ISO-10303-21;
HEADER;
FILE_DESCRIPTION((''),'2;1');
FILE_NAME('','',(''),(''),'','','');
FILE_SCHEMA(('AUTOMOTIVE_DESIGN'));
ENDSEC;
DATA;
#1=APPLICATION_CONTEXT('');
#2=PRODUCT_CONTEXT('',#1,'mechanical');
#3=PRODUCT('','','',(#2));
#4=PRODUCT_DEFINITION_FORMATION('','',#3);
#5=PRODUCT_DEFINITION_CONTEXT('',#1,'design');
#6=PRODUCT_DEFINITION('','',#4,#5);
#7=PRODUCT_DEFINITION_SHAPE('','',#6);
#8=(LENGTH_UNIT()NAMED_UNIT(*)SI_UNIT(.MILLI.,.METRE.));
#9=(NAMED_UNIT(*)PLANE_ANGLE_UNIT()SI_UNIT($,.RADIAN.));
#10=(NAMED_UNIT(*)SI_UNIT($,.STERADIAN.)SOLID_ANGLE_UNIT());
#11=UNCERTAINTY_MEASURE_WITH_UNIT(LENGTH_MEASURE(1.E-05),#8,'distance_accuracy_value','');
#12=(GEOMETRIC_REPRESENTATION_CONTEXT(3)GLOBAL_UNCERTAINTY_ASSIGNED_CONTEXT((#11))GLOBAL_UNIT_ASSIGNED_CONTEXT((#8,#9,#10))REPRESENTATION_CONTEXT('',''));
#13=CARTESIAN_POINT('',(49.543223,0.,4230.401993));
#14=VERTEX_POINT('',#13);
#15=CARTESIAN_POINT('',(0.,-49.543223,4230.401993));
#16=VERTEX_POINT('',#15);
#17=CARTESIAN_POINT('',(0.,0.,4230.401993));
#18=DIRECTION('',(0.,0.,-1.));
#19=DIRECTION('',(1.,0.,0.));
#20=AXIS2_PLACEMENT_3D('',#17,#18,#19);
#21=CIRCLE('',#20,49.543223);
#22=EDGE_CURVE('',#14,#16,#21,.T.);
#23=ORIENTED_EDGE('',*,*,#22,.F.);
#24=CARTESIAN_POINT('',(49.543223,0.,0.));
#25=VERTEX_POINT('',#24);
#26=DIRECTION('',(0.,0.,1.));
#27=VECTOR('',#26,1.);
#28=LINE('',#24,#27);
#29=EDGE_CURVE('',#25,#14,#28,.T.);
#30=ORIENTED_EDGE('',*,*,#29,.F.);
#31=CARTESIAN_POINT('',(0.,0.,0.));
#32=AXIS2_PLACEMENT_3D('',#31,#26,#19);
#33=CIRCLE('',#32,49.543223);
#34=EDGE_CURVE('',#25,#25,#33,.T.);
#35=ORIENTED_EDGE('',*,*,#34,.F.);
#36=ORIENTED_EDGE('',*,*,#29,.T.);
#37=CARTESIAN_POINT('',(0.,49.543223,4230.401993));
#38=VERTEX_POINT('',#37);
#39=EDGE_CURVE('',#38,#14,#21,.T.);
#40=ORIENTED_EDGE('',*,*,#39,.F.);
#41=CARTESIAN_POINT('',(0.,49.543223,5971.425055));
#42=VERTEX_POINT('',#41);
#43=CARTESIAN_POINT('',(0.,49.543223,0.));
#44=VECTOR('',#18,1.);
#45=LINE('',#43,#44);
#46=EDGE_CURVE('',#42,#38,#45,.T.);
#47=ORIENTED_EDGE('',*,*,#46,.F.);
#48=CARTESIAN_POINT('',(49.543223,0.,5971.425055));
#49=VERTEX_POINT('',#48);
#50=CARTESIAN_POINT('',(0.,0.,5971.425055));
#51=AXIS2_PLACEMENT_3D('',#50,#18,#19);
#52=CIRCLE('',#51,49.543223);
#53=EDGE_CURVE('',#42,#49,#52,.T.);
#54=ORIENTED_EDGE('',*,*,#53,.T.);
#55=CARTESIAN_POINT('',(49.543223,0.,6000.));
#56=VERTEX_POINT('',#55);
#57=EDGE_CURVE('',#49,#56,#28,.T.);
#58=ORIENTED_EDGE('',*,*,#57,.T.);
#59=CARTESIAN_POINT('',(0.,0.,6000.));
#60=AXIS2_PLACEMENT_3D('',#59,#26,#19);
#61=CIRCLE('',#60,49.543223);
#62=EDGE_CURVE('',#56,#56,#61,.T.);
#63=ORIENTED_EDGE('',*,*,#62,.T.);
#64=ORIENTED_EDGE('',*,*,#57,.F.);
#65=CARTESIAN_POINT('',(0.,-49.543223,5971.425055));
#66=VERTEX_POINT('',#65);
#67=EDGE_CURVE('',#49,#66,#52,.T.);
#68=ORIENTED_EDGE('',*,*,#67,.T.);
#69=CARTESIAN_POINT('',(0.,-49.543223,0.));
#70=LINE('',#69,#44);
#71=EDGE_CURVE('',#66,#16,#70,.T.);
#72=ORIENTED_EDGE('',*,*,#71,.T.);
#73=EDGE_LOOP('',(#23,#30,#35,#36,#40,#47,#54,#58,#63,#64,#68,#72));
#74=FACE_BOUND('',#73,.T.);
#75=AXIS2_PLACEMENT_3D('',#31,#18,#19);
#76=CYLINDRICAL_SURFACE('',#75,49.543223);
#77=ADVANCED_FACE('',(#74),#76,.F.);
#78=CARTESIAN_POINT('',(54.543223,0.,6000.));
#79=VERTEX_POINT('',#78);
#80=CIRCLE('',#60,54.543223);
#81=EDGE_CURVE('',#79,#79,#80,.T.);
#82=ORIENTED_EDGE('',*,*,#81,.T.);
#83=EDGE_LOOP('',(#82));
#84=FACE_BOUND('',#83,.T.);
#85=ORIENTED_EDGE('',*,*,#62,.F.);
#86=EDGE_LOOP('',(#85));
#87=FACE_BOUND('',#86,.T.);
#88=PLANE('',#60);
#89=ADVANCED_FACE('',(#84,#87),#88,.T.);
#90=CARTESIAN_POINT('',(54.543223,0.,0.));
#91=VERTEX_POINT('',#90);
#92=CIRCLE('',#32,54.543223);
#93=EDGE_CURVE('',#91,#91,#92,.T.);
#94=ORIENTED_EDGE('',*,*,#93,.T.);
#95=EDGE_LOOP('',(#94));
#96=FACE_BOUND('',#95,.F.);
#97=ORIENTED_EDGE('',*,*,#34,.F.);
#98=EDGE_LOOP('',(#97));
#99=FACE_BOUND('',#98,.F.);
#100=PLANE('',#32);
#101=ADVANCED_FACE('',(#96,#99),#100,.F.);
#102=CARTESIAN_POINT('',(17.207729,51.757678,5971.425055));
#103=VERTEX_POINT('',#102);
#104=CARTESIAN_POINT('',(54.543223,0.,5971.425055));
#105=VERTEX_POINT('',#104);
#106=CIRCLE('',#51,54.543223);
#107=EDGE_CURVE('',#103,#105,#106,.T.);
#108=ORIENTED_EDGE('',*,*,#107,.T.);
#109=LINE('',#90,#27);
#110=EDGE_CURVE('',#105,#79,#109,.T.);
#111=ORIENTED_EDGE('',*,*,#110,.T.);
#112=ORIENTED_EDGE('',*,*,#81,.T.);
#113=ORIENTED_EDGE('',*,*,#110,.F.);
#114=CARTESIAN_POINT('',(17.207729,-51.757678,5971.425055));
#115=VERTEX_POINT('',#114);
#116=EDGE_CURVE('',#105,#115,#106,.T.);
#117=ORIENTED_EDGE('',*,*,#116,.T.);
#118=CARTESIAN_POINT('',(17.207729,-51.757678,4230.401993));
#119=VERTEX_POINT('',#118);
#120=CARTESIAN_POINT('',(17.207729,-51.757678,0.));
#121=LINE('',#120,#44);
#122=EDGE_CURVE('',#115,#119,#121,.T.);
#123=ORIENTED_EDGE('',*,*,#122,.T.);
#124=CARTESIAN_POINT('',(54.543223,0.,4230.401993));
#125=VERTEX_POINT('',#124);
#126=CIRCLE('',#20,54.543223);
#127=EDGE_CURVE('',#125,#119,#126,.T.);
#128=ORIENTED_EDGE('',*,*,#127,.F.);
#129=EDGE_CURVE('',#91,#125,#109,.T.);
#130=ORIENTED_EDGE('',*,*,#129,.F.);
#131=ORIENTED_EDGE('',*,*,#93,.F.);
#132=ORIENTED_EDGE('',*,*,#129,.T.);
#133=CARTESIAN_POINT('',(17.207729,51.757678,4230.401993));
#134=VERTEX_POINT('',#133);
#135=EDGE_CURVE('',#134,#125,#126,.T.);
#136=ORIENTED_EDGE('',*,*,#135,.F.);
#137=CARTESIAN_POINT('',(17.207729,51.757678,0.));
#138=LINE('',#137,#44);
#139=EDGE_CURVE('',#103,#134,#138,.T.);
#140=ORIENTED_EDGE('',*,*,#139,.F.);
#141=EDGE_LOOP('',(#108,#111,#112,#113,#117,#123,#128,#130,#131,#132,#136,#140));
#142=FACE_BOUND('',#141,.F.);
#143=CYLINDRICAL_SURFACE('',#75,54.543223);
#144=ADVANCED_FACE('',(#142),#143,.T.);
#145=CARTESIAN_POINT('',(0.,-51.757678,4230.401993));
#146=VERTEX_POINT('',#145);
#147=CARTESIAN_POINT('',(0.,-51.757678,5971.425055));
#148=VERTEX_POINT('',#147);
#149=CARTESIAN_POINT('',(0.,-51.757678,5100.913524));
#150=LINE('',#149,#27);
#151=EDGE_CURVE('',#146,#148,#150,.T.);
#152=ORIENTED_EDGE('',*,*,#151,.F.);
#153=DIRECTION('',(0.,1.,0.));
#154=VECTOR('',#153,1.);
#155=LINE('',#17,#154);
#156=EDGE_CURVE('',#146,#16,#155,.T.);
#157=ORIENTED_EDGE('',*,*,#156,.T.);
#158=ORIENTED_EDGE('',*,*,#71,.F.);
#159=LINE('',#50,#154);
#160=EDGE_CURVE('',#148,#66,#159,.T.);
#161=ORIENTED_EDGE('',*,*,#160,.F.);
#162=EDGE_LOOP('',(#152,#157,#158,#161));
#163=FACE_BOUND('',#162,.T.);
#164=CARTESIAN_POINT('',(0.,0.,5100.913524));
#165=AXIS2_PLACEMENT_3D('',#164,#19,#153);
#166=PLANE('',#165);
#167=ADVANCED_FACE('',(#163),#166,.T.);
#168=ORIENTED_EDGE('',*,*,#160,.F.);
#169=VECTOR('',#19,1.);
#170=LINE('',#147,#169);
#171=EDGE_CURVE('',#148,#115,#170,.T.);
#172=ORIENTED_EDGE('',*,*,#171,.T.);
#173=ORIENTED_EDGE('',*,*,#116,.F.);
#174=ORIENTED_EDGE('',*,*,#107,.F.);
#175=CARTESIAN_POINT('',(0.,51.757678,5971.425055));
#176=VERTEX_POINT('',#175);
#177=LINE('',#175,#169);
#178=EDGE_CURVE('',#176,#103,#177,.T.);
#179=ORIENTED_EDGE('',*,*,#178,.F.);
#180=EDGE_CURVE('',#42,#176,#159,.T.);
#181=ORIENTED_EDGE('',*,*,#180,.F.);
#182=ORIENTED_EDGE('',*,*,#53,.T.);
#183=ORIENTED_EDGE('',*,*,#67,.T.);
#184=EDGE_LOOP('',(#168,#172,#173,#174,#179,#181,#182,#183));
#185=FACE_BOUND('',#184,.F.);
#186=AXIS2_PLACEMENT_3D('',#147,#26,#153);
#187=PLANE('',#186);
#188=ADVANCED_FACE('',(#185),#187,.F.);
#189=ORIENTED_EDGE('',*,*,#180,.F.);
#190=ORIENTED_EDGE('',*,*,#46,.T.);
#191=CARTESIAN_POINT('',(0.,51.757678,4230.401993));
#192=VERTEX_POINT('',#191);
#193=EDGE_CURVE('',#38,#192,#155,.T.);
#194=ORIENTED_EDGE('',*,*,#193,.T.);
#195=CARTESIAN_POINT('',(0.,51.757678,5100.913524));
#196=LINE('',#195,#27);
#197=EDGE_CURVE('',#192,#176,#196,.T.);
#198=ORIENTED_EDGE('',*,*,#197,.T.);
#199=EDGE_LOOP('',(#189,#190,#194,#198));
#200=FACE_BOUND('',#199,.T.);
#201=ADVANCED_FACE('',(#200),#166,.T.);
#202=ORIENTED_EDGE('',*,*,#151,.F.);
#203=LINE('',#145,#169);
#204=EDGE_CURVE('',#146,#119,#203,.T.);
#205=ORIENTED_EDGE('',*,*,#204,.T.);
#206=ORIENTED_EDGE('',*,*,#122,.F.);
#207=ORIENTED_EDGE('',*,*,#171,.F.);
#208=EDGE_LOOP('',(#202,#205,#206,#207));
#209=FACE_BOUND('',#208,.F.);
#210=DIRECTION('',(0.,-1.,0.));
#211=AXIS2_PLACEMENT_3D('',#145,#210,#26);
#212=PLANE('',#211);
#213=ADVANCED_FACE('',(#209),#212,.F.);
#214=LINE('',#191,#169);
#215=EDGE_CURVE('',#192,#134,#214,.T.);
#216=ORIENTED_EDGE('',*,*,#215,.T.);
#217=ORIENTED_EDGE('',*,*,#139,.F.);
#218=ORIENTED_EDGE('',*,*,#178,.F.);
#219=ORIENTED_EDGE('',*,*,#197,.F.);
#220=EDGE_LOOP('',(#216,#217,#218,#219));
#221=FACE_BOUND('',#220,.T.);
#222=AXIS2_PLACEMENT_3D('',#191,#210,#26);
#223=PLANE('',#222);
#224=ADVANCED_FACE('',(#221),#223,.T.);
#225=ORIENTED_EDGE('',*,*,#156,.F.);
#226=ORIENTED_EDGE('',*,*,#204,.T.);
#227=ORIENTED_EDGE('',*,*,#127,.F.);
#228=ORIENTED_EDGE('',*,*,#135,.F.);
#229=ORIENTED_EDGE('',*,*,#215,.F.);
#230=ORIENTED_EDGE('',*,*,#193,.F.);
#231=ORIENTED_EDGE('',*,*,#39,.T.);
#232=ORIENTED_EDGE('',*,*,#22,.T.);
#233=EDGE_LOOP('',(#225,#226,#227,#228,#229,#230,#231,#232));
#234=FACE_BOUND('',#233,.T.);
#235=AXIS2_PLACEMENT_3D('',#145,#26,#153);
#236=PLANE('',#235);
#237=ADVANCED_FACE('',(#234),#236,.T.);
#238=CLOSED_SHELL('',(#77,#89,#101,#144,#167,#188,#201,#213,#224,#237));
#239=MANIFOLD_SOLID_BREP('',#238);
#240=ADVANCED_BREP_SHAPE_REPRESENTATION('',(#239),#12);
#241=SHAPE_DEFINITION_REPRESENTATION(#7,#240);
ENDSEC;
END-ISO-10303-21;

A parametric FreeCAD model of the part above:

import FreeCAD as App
import Part
import Sketcher

V = App.Vector
Q = App.Units.Quantity


def faces_at(feature, points):
    """Names of the faces that lie closest to the given points."""
    faces = feature.Shape.Faces
    near = lambda p: min(range(len(faces)), key=lambda i: faces[i].distToShape(Part.Vertex(*p))[0])
    return sorted({f"Face{near(p) + 1}" for p in points})


def add_polygon(sketch, points):
    """Adds a closed chain of lines whose ends are joined by coincident constraints."""
    first, n = sketch.GeometryCount, len(points)
    for a, b in zip(points, points[1:] + points[:1]):
        sketch.addGeometry(Part.LineSegment(App.Vector(*a, 0), App.Vector(*b, 0)), False)
    for i in range(n):
        sketch.addConstraint(Sketcher.Constraint("Coincident", first + i, 2, first + (i + 1) % n, 1))

doc = App.newDocument("Part")
params = doc.addObject("Spreadsheet::Sheet", "Params")
for row, (alias, value) in enumerate([
    ("pad1_length", "6000 mm"),
    ("thickness_wall", "5 mm"),
    ("pocket1_length", "772.16 mm"),
], start=1):
    params.set(f"A{row}", alias)
    params.set(f"B{row}", "=" + value)
    params.setAlias(f"B{row}", alias)

body = doc.addObject("PartDesign::Body", "Body")

sketch1 = doc.addObject("Sketcher::SketchObject", "Sketch")
body.addObject(sketch1)
sketch1.AttachmentSupport = (doc.XY_Plane, [""])
sketch1.MapMode = "FlatFace"
sketch1.addGeometry(Part.Circle(V(0, 0, 0), V(0, 0, 1), 55), False)
sketch1.addConstraint([
    Sketcher.Constraint("Coincident", 0, 3, -1, 1),
    Sketcher.Constraint("Diameter", 0, Q("109.086446 mm")),
])
pad1 = doc.addObject("PartDesign::Pad", "Pad")
body.addObject(pad1)
pad1.Profile = sketch1
pad1.setExpression("Length", "Params.pad1_length")
doc.recompute()

thickness = doc.addObject("PartDesign::Thickness", "Thickness")
body.addObject(thickness)
thickness.Base = (pad1, faces_at(pad1, [(0, 0, 6000), (0, 0, 0)]))
thickness.setExpression("Value", "Params.thickness_wall")
thickness.Reversed = True
thickness.Join = "Arc"

sketch2 = doc.addObject("Sketcher::SketchObject", "Sketch001")
body.addObject(sketch2)
sketch2.AttachmentSupport = (doc.YZ_Plane, [""])
sketch2.MapMode = "FlatFace"
add_polygon(sketch2, [(-52, 5971), (-52, 4230), (52, 4230), (52, 5971)])
sketch2.addConstraint([
    Sketcher.Constraint("Vertical", 0),
    Sketcher.Constraint("Horizontal", 1),
    Sketcher.Constraint("Vertical", 2),
    Sketcher.Constraint("Horizontal", 3),
    Sketcher.Constraint("DistanceX", 1, 1, 1, 2, Q("103.515356 mm")),
    Sketcher.Constraint("DistanceY", 0, 2, 0, 1, Q("1741.023063 mm")),
    Sketcher.Constraint("DistanceX", 0, 2, -1, 1, Q("51.757678 mm")),
    Sketcher.Constraint("DistanceY", -1, 1, 0, 2, Q("4230.401993 mm")),
])
pocket1 = doc.addObject("PartDesign::Pocket", "Pocket")
body.addObject(pocket1)
pocket1.Profile = sketch2
pocket1.setExpression("Length", "Params.pocket1_length")
pocket1.Reversed = True

doc.recompute()
